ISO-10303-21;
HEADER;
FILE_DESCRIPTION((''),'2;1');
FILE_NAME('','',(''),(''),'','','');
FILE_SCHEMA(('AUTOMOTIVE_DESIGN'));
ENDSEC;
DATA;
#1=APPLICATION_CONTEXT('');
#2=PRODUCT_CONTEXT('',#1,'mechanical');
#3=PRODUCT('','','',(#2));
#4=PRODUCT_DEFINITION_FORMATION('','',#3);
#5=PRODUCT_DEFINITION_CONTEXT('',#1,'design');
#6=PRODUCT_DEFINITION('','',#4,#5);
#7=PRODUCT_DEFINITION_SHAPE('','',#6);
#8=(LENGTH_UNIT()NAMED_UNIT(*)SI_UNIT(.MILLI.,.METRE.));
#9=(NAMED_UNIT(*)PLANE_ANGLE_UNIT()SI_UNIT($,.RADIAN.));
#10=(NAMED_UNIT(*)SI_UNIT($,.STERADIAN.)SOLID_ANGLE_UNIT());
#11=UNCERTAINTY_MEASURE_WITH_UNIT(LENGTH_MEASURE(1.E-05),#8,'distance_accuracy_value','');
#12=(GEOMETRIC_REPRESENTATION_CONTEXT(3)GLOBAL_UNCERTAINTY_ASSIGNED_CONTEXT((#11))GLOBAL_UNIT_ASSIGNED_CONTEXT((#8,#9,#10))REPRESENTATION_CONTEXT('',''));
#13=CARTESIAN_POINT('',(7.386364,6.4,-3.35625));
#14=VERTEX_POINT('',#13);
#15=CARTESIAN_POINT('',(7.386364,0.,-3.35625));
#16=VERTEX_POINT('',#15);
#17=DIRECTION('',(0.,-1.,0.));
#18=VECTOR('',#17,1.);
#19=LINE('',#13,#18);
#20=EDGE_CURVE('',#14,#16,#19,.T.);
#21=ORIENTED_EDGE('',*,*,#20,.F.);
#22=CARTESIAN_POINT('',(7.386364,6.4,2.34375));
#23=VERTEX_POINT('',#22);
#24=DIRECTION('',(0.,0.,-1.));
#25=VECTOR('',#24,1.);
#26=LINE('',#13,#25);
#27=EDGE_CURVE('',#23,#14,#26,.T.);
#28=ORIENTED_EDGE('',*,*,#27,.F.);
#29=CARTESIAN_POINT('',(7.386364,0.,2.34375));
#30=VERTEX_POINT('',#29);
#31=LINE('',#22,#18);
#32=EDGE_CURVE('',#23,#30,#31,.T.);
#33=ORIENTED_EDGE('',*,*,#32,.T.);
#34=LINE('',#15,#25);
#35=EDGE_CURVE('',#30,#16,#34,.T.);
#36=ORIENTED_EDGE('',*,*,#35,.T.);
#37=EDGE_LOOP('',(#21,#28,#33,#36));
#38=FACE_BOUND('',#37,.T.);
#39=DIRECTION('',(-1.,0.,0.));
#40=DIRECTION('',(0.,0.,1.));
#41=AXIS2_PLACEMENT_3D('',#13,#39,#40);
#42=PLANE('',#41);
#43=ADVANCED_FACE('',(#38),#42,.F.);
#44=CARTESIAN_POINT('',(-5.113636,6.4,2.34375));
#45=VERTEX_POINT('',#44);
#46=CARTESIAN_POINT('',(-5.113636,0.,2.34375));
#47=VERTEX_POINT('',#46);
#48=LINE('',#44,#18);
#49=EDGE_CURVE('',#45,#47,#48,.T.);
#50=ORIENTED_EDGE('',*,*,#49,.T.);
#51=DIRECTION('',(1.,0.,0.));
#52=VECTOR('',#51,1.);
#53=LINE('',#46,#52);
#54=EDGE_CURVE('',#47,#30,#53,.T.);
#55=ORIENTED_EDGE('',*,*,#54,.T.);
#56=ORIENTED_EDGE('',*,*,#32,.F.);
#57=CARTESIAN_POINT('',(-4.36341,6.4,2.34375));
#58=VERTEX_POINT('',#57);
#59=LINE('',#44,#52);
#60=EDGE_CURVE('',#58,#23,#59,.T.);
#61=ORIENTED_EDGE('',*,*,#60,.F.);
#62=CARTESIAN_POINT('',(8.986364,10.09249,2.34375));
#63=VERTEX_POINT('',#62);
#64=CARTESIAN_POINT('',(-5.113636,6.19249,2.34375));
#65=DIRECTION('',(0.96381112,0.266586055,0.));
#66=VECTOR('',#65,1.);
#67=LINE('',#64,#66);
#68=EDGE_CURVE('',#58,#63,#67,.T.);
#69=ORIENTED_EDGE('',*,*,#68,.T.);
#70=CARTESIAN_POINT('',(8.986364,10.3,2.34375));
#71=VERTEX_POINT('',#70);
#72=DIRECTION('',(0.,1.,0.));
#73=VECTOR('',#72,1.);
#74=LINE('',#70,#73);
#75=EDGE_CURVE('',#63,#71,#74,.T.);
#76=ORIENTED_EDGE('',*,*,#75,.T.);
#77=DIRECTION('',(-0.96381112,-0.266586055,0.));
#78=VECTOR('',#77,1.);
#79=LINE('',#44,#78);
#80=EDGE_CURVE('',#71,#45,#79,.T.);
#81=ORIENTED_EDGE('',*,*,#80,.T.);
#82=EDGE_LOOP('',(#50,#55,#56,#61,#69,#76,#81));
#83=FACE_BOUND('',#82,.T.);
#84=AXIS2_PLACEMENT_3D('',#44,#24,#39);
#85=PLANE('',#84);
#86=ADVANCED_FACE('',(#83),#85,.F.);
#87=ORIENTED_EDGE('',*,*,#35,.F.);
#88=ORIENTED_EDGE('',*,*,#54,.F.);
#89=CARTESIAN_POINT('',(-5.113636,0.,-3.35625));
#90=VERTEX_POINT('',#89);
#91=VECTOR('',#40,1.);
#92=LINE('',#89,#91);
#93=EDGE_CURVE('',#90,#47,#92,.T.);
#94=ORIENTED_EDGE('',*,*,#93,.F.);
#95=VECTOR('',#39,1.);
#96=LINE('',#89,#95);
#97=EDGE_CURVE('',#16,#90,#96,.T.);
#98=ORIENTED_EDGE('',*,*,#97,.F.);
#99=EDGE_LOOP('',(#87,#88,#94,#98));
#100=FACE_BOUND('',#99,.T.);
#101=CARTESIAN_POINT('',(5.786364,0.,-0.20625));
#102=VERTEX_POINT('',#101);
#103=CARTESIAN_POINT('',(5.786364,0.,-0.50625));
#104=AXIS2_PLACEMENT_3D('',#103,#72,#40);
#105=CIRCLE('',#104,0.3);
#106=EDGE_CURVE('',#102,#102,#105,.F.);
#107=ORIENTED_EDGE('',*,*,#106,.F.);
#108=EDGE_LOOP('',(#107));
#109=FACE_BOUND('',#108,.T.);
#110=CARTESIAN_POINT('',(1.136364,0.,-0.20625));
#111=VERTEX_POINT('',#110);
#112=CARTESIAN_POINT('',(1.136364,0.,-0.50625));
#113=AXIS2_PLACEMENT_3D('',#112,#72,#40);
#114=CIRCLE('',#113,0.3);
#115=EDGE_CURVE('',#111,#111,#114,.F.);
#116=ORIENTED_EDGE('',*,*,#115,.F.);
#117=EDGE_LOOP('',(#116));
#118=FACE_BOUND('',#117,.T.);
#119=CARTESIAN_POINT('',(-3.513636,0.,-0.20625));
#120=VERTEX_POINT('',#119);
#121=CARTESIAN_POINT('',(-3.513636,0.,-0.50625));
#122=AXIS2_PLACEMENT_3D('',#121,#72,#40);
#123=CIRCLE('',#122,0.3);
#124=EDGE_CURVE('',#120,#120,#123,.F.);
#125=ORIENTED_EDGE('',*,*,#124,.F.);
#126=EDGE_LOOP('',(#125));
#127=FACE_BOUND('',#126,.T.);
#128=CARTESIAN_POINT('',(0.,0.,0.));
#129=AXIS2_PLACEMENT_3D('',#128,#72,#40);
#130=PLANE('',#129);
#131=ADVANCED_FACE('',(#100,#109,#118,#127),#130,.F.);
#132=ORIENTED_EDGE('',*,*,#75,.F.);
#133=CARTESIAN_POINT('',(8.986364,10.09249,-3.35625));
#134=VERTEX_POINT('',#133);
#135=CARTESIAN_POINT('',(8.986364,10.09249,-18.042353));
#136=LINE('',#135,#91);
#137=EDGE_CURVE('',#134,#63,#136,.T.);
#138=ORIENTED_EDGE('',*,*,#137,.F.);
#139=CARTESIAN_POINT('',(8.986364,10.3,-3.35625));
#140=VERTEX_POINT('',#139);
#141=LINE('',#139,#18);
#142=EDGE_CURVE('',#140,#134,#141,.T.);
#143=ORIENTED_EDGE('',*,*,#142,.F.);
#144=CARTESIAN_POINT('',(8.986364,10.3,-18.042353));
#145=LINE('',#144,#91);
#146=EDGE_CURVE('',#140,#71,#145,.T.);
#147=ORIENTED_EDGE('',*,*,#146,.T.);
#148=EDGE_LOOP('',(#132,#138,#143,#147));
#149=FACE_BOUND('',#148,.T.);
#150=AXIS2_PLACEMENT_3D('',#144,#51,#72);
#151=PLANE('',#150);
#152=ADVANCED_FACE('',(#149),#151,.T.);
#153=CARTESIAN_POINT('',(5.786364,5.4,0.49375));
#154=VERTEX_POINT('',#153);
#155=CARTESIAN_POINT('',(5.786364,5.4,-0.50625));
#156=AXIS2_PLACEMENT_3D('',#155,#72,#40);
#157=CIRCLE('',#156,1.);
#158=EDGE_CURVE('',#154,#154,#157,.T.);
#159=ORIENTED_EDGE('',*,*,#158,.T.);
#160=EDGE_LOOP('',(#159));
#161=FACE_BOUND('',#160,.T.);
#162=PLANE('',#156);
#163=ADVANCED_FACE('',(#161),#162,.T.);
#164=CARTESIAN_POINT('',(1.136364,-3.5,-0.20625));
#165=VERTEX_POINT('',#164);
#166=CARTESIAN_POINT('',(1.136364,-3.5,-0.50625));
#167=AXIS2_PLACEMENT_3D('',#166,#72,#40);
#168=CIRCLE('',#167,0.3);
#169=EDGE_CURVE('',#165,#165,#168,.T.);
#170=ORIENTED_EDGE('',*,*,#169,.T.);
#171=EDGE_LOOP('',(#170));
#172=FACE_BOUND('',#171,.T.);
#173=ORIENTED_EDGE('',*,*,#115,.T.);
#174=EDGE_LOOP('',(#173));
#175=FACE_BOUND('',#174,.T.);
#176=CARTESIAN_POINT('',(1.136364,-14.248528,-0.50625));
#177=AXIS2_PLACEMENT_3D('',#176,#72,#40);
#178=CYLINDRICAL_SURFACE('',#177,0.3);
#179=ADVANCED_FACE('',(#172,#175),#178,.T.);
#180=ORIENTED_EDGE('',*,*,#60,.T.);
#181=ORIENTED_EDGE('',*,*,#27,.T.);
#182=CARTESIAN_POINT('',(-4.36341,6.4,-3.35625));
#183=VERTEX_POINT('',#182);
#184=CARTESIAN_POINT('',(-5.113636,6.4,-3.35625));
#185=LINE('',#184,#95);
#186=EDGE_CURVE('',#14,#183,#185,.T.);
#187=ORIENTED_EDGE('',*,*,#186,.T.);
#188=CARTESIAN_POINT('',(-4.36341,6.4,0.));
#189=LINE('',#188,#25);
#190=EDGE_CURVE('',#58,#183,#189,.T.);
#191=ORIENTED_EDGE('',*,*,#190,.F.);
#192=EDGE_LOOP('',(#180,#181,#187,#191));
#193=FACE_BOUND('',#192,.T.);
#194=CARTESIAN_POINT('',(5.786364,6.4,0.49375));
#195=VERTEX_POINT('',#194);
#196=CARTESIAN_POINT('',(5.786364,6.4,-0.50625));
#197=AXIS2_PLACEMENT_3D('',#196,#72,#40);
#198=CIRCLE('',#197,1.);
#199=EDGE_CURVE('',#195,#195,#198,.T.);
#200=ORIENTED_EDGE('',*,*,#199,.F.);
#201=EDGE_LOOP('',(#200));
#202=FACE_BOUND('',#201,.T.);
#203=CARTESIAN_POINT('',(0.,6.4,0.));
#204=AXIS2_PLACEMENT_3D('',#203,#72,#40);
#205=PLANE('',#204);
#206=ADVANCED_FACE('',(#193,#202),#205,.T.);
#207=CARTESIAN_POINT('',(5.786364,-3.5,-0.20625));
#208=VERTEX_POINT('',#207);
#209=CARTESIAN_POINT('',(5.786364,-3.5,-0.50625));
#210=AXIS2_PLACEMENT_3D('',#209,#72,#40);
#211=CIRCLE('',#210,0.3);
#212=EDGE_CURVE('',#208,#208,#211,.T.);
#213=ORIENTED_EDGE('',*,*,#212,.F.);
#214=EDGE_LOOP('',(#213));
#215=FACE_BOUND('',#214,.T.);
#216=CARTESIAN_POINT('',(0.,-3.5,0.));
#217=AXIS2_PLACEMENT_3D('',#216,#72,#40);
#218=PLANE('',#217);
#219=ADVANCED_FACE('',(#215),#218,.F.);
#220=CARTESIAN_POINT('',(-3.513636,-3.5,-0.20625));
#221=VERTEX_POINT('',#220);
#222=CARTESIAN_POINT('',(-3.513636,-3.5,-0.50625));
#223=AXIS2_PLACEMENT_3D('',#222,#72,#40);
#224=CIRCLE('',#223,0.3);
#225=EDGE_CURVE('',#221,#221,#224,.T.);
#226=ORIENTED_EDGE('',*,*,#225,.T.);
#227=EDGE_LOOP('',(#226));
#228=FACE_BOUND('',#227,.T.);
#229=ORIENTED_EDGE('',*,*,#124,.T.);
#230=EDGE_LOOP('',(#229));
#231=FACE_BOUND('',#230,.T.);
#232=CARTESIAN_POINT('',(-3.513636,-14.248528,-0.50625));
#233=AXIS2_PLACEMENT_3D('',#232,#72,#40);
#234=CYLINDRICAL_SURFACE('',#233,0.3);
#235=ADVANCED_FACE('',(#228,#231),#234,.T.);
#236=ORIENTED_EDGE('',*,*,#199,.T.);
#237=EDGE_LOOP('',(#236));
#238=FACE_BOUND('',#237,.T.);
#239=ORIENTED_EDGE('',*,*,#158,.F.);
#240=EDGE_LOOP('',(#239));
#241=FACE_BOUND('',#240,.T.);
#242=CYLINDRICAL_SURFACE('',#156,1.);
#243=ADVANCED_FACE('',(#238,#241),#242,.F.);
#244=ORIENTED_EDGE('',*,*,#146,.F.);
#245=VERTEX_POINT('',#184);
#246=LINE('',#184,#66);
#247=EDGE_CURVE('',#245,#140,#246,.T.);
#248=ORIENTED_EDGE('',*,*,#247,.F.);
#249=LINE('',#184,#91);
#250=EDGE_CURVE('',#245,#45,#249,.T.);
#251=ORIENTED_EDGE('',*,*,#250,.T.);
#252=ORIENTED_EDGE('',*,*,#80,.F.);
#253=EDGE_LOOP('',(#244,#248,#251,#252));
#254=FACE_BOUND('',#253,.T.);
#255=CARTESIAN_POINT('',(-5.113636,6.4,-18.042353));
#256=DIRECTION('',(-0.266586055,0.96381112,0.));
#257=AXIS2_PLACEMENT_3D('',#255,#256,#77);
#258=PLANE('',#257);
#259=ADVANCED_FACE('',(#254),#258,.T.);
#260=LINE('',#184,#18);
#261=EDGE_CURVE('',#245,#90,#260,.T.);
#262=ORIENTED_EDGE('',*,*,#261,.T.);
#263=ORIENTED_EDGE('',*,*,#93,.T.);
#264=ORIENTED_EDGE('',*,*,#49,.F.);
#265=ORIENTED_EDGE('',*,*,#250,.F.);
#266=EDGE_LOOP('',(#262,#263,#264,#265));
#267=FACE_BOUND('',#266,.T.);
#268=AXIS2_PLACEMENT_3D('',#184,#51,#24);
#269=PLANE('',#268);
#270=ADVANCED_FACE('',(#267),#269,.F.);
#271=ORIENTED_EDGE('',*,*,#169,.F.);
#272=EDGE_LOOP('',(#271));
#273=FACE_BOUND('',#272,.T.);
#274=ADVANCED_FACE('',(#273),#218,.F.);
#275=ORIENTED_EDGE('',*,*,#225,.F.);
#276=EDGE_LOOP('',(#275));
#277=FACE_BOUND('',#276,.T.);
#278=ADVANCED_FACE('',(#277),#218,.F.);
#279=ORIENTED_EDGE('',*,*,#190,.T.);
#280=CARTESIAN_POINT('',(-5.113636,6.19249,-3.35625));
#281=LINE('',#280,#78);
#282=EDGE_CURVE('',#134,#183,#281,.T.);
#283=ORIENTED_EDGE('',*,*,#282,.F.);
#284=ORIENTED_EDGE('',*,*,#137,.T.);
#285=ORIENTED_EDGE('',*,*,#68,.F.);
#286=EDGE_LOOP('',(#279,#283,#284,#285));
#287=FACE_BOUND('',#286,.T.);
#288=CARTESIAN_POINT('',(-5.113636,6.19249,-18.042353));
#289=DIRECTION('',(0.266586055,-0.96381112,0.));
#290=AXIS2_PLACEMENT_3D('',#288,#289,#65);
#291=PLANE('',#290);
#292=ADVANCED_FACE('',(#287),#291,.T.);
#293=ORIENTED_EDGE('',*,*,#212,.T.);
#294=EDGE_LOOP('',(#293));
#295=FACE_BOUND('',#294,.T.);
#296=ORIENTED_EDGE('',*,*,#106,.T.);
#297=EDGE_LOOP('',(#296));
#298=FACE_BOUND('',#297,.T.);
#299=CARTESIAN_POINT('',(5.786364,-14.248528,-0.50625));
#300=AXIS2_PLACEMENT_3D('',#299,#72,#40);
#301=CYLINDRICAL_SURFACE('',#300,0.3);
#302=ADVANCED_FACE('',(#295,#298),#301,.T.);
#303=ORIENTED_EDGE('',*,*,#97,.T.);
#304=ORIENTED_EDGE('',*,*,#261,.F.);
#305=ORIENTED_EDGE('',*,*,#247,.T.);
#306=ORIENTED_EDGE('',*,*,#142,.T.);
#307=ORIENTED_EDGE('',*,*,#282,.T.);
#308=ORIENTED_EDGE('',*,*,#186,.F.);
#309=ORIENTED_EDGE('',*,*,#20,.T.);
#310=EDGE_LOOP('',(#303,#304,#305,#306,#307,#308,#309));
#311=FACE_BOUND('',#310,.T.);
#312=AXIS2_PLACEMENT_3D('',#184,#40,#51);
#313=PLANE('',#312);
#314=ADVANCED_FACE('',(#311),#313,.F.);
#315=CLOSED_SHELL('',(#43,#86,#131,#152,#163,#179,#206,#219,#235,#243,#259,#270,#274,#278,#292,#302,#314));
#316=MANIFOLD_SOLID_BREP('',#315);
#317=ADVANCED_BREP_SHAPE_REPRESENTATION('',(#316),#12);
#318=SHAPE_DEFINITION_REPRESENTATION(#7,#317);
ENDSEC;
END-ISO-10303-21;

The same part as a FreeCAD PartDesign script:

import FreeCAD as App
import Part
import Sketcher
Q = App.Units.Quantity


def add_polygon(sketch, points):
    """Adds a closed chain of lines whose ends are joined by coincident constraints."""
    first, n = sketch.GeometryCount, len(points)
    for a, b in zip(points, points[1:] + points[:1]):
        sketch.addGeometry(Part.LineSegment(App.Vector(*a, 0), App.Vector(*b, 0)), False)
    for i in range(n):
        sketch.addConstraint(Sketcher.Constraint("Coincident", first + i, 2, first + (i + 1) % n, 1))

doc = App.newDocument("Part")
body = doc.addObject("PartDesign::Body", "Body")

# Sketch on XZ plane
sketch1 = body.newObject("Sketcher::SketchObject", "Sketch")
sketch1.AttachmentSupport = (doc.getObject("XZ_Plane"), [""])
sketch1.MapMode = "FlatFace"
add_polygon(sketch1, [(-5, -3), (-5, 2), (7, 2), (7, -3)])  # lines 0-3
sketch1.addConstraint(Sketcher.Constraint("Vertical", 0))
sketch1.addConstraint(Sketcher.Constraint("Horizontal", 1))
sketch1.addConstraint(Sketcher.Constraint("Vertical", 2))
sketch1.addConstraint(Sketcher.Constraint("Horizontal", 3))
sketch1.addConstraint(Sketcher.Constraint("DistanceX", 1, 1, 1, 2, Q("12.5 mm")))
sketch1.addConstraint(Sketcher.Constraint("DistanceY", 0, 1, 0, 2, Q("5.7 mm")))
sketch1.addConstraint(Sketcher.Constraint("DistanceY", -1, 1, 0, 2, Q("2.34375 mm")))
sketch1.addConstraint(Sketcher.Constraint("DistanceX", 0, 2, -1, 1, Q("5.113636 mm")))
pad1 = body.newObject("PartDesign::Pad", "Pad")
pad1.Profile = sketch1
pad1.Length = 6.4
pad1.Reversed = True

# Sketch on XY plane
sketch2 = body.newObject("Sketcher::SketchObject", "Sketch001")
sketch2.AttachmentSupport = (doc.getObject("XY_Plane"), [""])
sketch2.MapMode = "FlatFace"
sketch2.AttachmentOffset = App.Placement(App.Vector(0, 0, 2.34375), App.Rotation())
add_polygon(sketch2, [(8.99, 10.3), (-5.11, 6.4), (-5.11, 6.19), (8.99, 10.09)])  # lines 0-3
sketch2.addConstraint(Sketcher.Constraint("Vertical", 1))
sketch2.addConstraint(Sketcher.Constraint("Vertical", 3))
sketch2.addConstraint(Sketcher.Constraint("Parallel", 0, 2))
sketch2.addConstraint(Sketcher.Constraint("DistanceY", -1, 1, 0, 2, Q("6.4 mm")))
sketch2.addConstraint(Sketcher.Constraint("DistanceY", -1, 1, 3, 2, Q("10.3 mm")))
sketch2.addConstraint(Sketcher.Constraint("DistanceX", 0, 2, 2, 2, Q("14.1 mm")))
sketch2.addConstraint(Sketcher.Constraint("DistanceY", 1, 2, 1, 1, Q("0.20751 mm")))
sketch2.addConstraint(Sketcher.Constraint("DistanceX", 0, 2, -1, 1, Q("5.113636 mm")))
pad2 = body.newObject("PartDesign::Pad", "Pad001")
pad2.Profile = sketch2
pad2.Length = 5.7
pad2.Reversed = True

# Sketch on XZ plane
sketch3 = body.newObject("Sketcher::SketchObject", "Sketch002")
sketch3.AttachmentSupport = (doc.getObject("XZ_Plane"), [""])
sketch3.MapMode = "FlatFace"
sketch3.addGeometry(Part.Circle(App.Vector(-3.51, -0.51, 0), App.Vector(0, 0, 1), 0.3), False)
sketch3.addGeometry(Part.Circle(App.Vector(1.14, -0.51, 0), App.Vector(0, 0, 1), 0.3), False)
sketch3.addGeometry(Part.Circle(App.Vector(5.79, -0.51, 0), App.Vector(0, 0, 1), 0.3), False)
sketch3.addConstraint(Sketcher.Constraint("Equal", 0, 1))
sketch3.addConstraint(Sketcher.Constraint("Equal", 1, 2))
sketch3.addConstraint(Sketcher.Constraint("Horizontal", 0, 3, 1, 3))
sketch3.addConstraint(Sketcher.Constraint("Horizontal", 1, 3, 2, 3))
sketch3.addConstraint(Sketcher.Constraint("Diameter", 0, Q("0.6 mm")))
sketch3.addConstraint(Sketcher.Constraint("DistanceX", 0, 3, 2, 3, Q("9.3 mm")))
sketch3.addConstraint(Sketcher.Constraint("DistanceX", 0, 3, 1, 3, Q("4.65 mm")))
sketch3.addConstraint(Sketcher.Constraint("DistanceY", 0, 3, -1, 1, Q("0.50625 mm")))
sketch3.addConstraint(Sketcher.Constraint("DistanceX", 0, 3, -1, 1, Q("3.513636 mm")))
pad3 = body.newObject("PartDesign::Pad", "Pad002")
pad3.Profile = sketch3
pad3.Length = 3.5

# Sketch on XZ plane
sketch4 = body.newObject("Sketcher::SketchObject", "Sketch003")
sketch4.AttachmentSupport = (doc.getObject("XZ_Plane"), [""])
sketch4.MapMode = "FlatFace"
sketch4.AttachmentOffset = App.Placement(App.Vector(0, 0, -6.4), App.Rotation())
sketch4.addGeometry(Part.Circle(App.Vector(5.8, -0.5, 0), App.Vector(0, 0, 1), 1), False)
sketch4.addConstraint(Sketcher.Constraint("Diameter", 0, Q("2 mm")))
sketch4.addConstraint(Sketcher.Constraint("DistanceY", 0, 3, -1, 1, Q("0.50625 mm")))
sketch4.addConstraint(Sketcher.Constraint("DistanceX", -1, 1, 0, 3, Q("5.786364 mm")))
pocket1 = body.newObject("PartDesign::Pocket", "Pocket")
pocket1.Profile = sketch4
pocket1.Length = 1
pocket1.Reversed = True

doc.recompute()
